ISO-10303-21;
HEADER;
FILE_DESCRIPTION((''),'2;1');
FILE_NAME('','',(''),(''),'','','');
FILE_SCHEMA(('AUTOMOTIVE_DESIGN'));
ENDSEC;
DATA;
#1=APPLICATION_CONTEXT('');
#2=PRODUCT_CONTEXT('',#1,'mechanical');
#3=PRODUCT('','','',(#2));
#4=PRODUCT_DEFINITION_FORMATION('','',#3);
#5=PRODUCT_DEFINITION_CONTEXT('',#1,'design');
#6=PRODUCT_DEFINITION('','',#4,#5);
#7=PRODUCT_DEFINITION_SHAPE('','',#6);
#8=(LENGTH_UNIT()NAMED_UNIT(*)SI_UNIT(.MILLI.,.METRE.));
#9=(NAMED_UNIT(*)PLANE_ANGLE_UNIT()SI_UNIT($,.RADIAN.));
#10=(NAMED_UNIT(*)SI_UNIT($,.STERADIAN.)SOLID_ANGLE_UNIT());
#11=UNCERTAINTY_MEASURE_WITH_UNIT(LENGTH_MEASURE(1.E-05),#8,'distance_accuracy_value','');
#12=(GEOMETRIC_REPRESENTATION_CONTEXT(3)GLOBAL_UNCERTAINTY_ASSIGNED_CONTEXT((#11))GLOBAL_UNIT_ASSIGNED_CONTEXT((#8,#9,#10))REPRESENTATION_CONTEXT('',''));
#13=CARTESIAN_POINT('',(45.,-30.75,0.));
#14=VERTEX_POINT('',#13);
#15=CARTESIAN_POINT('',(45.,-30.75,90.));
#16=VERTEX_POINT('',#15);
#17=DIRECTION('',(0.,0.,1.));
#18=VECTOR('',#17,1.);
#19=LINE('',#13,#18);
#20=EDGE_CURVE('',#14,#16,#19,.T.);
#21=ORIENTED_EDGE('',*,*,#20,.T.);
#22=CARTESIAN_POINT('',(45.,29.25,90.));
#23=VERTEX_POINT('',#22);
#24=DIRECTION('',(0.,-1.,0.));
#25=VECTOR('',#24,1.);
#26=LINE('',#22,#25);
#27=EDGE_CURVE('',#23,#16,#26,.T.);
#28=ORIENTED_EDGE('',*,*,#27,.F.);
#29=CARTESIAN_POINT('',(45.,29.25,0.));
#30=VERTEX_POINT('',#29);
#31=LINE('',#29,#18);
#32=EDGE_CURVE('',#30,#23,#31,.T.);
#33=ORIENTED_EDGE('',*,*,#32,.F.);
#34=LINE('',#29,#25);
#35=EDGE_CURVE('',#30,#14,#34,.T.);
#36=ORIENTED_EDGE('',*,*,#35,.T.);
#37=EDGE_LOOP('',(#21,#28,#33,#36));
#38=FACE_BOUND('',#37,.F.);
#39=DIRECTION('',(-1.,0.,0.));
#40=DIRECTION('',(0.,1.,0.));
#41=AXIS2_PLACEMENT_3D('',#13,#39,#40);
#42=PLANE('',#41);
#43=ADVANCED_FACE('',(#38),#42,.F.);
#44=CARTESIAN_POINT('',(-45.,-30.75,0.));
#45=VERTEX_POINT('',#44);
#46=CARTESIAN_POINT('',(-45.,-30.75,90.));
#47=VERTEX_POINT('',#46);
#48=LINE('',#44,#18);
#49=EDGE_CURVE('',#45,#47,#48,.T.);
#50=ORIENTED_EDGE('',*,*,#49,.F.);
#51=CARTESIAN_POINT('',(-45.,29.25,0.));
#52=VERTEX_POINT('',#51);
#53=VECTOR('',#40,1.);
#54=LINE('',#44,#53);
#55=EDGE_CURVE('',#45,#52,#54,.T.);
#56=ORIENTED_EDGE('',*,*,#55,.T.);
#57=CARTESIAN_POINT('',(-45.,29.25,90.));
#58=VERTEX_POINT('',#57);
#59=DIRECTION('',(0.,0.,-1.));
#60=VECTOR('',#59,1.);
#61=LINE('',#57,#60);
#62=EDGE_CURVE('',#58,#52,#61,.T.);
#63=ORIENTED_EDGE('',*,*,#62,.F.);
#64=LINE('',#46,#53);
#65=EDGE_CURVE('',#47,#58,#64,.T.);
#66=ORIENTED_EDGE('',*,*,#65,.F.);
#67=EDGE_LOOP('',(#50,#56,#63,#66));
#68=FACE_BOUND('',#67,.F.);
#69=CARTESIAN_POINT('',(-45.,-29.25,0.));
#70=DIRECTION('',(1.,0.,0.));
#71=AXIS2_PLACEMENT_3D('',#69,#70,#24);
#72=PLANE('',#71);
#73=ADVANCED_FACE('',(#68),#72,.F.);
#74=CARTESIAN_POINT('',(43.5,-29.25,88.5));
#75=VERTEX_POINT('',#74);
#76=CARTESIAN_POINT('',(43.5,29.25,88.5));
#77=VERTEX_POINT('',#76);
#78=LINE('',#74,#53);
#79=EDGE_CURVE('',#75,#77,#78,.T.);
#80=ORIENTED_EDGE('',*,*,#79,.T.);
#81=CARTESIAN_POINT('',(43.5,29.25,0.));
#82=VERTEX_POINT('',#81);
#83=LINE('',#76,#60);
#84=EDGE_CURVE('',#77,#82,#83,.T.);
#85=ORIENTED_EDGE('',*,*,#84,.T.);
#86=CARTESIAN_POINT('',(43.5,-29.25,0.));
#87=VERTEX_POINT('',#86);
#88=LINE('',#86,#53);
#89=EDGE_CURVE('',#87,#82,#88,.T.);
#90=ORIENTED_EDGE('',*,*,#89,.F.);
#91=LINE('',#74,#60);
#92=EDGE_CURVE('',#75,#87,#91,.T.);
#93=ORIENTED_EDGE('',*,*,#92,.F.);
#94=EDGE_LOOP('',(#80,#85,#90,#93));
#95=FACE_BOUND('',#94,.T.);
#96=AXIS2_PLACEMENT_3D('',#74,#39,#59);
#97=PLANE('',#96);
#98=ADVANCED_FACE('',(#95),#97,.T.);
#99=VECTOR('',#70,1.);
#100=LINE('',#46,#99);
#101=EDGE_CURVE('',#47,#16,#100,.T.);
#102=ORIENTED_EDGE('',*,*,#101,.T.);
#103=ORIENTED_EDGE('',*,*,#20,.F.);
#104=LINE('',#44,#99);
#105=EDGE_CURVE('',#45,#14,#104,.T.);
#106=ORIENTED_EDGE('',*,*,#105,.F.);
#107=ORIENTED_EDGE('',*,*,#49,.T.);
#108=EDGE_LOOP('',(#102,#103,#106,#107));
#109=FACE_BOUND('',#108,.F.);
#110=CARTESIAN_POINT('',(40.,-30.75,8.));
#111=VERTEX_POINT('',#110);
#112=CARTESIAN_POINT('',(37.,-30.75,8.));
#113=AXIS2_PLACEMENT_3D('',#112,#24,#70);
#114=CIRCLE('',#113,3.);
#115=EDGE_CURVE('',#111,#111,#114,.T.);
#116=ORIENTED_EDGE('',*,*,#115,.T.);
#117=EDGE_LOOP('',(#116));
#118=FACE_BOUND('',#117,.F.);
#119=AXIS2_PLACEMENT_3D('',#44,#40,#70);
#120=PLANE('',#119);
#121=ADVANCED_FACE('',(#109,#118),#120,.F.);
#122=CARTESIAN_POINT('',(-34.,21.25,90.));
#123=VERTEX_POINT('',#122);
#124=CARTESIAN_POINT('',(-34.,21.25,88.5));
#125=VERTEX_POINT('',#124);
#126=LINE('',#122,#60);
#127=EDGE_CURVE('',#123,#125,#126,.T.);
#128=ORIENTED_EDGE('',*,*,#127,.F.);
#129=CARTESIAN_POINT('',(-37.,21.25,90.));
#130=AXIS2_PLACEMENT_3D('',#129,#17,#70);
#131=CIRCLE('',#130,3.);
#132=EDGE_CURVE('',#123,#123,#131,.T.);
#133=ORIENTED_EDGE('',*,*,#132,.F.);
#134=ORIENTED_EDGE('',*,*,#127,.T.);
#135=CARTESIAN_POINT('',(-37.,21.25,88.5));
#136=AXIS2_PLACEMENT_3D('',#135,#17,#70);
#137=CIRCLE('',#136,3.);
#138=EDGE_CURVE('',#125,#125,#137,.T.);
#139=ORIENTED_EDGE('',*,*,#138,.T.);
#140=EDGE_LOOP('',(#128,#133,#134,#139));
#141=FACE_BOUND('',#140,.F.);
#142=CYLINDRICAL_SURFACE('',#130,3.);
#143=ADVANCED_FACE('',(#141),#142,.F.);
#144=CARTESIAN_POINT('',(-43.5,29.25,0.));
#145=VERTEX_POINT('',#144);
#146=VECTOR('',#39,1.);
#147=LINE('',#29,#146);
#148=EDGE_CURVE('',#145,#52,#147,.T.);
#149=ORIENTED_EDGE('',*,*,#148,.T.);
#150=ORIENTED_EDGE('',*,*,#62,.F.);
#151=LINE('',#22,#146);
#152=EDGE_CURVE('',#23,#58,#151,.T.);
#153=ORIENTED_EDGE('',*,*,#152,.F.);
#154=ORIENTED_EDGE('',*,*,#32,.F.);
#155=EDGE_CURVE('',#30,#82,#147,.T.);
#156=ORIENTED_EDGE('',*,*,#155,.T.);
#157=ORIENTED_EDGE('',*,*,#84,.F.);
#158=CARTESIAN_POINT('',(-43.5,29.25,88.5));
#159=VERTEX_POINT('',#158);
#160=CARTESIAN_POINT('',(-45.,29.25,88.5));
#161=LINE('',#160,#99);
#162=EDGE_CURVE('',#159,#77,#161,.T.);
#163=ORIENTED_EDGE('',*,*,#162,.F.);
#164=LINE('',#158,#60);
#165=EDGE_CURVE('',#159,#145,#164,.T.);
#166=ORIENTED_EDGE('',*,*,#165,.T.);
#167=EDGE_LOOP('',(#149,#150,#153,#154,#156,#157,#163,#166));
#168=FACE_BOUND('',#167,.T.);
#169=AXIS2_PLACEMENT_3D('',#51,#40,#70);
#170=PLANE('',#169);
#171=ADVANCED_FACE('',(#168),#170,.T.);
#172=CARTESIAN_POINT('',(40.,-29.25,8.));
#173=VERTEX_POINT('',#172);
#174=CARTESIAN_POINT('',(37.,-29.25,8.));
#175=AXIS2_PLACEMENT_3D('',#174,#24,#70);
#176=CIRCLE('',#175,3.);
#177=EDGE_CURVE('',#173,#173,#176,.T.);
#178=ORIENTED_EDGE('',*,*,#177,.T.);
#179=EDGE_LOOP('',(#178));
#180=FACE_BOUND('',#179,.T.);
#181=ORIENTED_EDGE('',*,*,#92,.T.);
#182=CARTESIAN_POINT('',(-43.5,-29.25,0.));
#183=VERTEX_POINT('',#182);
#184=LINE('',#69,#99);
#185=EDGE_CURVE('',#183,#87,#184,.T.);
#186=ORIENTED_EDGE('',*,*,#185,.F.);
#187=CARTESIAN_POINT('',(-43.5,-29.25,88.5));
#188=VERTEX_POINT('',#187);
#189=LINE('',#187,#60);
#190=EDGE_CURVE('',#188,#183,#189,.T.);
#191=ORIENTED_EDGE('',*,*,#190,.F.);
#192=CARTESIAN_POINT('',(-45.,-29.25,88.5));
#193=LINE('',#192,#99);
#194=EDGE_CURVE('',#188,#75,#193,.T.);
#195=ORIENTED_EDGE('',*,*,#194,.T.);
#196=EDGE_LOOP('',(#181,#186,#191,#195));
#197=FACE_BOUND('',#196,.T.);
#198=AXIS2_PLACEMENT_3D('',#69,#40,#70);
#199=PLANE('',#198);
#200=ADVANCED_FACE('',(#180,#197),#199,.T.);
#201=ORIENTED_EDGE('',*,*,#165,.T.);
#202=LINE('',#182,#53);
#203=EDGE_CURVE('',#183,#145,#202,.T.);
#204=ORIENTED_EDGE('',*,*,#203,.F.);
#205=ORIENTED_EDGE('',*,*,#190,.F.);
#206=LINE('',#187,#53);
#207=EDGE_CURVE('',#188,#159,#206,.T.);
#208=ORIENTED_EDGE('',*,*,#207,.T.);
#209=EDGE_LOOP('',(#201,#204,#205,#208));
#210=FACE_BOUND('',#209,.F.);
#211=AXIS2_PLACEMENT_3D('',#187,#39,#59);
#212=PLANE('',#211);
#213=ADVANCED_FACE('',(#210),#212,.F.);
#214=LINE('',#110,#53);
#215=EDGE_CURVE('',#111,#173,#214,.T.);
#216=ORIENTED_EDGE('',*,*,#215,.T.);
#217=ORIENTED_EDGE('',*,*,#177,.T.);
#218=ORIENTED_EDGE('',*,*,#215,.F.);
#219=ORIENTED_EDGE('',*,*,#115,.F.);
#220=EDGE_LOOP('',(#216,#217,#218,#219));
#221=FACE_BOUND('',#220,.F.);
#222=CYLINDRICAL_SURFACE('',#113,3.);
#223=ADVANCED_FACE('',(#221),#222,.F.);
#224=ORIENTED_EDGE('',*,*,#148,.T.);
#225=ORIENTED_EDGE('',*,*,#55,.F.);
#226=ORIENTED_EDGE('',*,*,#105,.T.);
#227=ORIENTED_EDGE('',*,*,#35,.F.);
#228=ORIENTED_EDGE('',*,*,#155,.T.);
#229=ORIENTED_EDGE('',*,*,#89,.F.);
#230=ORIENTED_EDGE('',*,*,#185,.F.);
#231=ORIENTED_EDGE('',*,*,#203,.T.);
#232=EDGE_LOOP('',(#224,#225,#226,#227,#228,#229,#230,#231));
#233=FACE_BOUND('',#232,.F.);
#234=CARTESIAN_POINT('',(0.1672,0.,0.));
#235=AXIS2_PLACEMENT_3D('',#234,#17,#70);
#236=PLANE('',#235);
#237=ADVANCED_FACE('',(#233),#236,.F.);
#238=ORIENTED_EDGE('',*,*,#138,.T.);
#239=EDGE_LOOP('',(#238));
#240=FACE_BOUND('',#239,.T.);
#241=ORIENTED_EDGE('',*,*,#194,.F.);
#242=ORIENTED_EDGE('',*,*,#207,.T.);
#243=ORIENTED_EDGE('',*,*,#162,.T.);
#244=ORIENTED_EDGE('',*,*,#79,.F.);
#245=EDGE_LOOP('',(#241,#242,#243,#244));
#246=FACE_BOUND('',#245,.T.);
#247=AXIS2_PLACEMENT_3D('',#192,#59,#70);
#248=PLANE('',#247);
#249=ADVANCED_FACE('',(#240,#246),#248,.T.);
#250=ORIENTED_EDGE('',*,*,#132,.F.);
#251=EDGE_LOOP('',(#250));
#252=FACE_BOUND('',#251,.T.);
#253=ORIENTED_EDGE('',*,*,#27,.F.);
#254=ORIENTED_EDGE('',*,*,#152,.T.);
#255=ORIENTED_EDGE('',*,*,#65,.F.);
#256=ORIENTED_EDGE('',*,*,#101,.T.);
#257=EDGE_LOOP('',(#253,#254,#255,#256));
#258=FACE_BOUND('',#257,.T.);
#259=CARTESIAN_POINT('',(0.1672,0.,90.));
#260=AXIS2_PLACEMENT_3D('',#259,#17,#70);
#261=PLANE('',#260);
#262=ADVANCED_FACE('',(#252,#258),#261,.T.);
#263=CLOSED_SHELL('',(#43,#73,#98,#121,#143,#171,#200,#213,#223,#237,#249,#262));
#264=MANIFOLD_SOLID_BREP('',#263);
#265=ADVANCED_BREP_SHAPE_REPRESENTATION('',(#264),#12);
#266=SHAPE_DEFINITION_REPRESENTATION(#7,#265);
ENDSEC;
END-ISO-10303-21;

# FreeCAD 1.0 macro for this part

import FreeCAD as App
import Part
import Sketcher

V = App.Vector
Q = App.Units.Quantity


def add_polygon(sketch, points):
    """Adds a closed chain of lines whose ends are joined by coincident constraints."""
    first, n = sketch.GeometryCount, len(points)
    for a, b in zip(points, points[1:] + points[:1]):
        sketch.addGeometry(Part.LineSegment(App.Vector(*a, 0), App.Vector(*b, 0)), False)
    for i in range(n):
        sketch.addConstraint(Sketcher.Constraint("Coincident", first + i, 2, first + (i + 1) % n, 1))

doc = App.newDocument("Part")
params = doc.addObject("Spreadsheet::Sheet", "Params")
for row, (alias, value) in enumerate([
    ("sketch1_height", "1.5 mm"),
    ("sketch1_width", "90 mm"),
    ("pad1_length", "90 mm"),
    ("sketch2_height", "1.5 mm"),
    ("sketch2_width", "90 mm"),
    ("pad2_length", "58.5 mm"),
    ("sketch3_width", "1.5 mm"),
    ("sketch3_height", "88.5 mm"),
    ("pad3_length", "58.5 mm"),
    ("sketch4_diameter", "6 mm"),
    ("sketch5_diameter", "6 mm"),
], start=1):
    params.set(f"A{row}", alias)
    params.set(f"B{row}", "=" + value)
    params.setAlias(f"B{row}", alias)

body = doc.addObject("PartDesign::Body", "Body")

# Sketch on XY plane
sketch1 = body.newObject("Sketcher::SketchObject", "Sketch")
sketch1.AttachmentSupport = (doc.getObject("XY_Plane"), [""])
sketch1.MapMode = "FlatFace"
add_polygon(sketch1, [(45, -29.2), (-45, -29.2), (-45, -30.8), (45, -30.8)])  # lines 0-3
sketch1.addConstraint(Sketcher.Constraint("Horizontal", 0))
sketch1.addConstraint(Sketcher.Constraint("Vertical", 1))
sketch1.addConstraint(Sketcher.Constraint("Horizontal", 2))
sketch1.addConstraint(Sketcher.Constraint("Vertical", 3))
sketch1.addConstraint(Sketcher.Constraint("DistanceY", 1, 2, 1, 1, Q("1.5 mm")))
sketch1.addConstraint(Sketcher.Constraint("DistanceX", 0, 2, 0, 1, Q("90 mm")))
sketch1.addConstraint(Sketcher.Constraint("DistanceX", 0, 2, -1, 1, Q("45 mm")))
sketch1.addConstraint(Sketcher.Constraint("DistanceY", 0, 2, -1, 1, Q("29.25 mm")))
sketch1.setExpression("Constraints[8]", "Params.sketch1_height")
sketch1.setExpression("Constraints[9]", "Params.sketch1_width")
pad1 = body.newObject("PartDesign::Pad", "Pad")
pad1.Profile = sketch1
pad1.setExpression("Length", "Params.pad1_length")

# Sketch on XZ plane
sketch2 = body.newObject("Sketcher::SketchObject", "Sketch001")
sketch2.AttachmentSupport = (doc.getObject("XZ_Plane"), [""])
sketch2.MapMode = "FlatFace"
sketch2.AttachmentOffset = App.Placement(V(0, 0, 29.25), App.Rotation())
add_polygon(sketch2, [(45, 90), (45, 88.5), (-45, 88.5), (-45, 90)])  # lines 0-3
sketch2.addConstraint(Sketcher.Constraint("Vertical", 0))
sketch2.addConstraint(Sketcher.Constraint("Horizontal", 1))
sketch2.addConstraint(Sketcher.Constraint("Vertical", 2))
sketch2.addConstraint(Sketcher.Constraint("Horizontal", 3))
sketch2.addConstraint(Sketcher.Constraint("DistanceY", 0, 2, 0, 1, Q("1.5 mm")))
sketch2.addConstraint(Sketcher.Constraint("DistanceX", 1, 2, 1, 1, Q("90 mm")))
sketch2.addConstraint(Sketcher.Constraint("DistanceX", -1, 1, 0, 2, Q("45 mm")))
sketch2.addConstraint(Sketcher.Constraint("DistanceY", -1, 1, 2, 2, Q("90 mm")))
sketch2.setExpression("Constraints[8]", "Params.sketch2_height")
sketch2.setExpression("Constraints[9]", "Params.sketch2_width")
pad2 = body.newObject("PartDesign::Pad", "Pad001")
pad2.Profile = sketch2
pad2.setExpression("Length", "Params.pad2_length")
pad2.Reversed = True

# Sketch on XZ plane
sketch3 = body.newObject("Sketcher::SketchObject", "Sketch002")
sketch3.AttachmentSupport = (doc.getObject("XZ_Plane"), [""])
sketch3.MapMode = "FlatFace"
sketch3.AttachmentOffset = App.Placement(V(0, 0, 29.25), App.Rotation())
add_polygon(sketch3, [(-43.5, 88.5), (-43.5, 0), (-45, 0), (-45, 88.5)])  # lines 0-3
add_polygon(sketch3, [(45, 88.5), (45, 0), (43.5, 0), (43.5, 88.5)])  # lines 4-7
sketch3.addConstraint(Sketcher.Constraint("Vertical", 0))
sketch3.addConstraint(Sketcher.Constraint("Horizontal", 1))
sketch3.addConstraint(Sketcher.Constraint("Vertical", 2))
sketch3.addConstraint(Sketcher.Constraint("Horizontal", 3))
sketch3.addConstraint(Sketcher.Constraint("Vertical", 4))
sketch3.addConstraint(Sketcher.Constraint("Horizontal", 5))
sketch3.addConstraint(Sketcher.Constraint("Vertical", 6))
sketch3.addConstraint(Sketcher.Constraint("Horizontal", 7))
sketch3.addConstraint(Sketcher.Constraint("Symmetric", 1, 2, 4, 2, -1, 1))
sketch3.addConstraint(Sketcher.Constraint("Symmetric", 0, 2, 5, 2, -2))
sketch3.addConstraint(Sketcher.Constraint("Horizontal", 3, 2, 6, 2))
sketch3.addConstraint(Sketcher.Constraint("DistanceX", 1, 2, 1, 1, Q("1.5 mm")))
sketch3.addConstraint(Sketcher.Constraint("DistanceY", 0, 2, 0, 1, Q("88.5 mm")))
sketch3.addConstraint(Sketcher.Constraint("DistanceX", 1, 2, -1, 1, Q("45 mm")))
sketch3.setExpression("Constraints[19]", "Params.sketch3_width")
sketch3.setExpression("Constraints[20]", "Params.sketch3_height")
pad3 = body.newObject("PartDesign::Pad", "Pad002")
pad3.Profile = sketch3
pad3.setExpression("Length", "Params.pad3_length")
pad3.Reversed = True

# Sketch on XZ plane
sketch4 = body.newObject("Sketcher::SketchObject", "Sketch003")
sketch4.AttachmentSupport = (doc.getObject("XZ_Plane"), [""])
sketch4.MapMode = "FlatFace"
sketch4.AttachmentOffset = App.Placement(V(0, 0, 30.75), App.Rotation())
sketch4.addGeometry(Part.Circle(V(37, 8, 0), V(0, 0, 1), 3), False)
sketch4.addConstraint(Sketcher.Constraint("Diameter", 0, Q("6 mm")))
sketch4.addConstraint(Sketcher.Constraint("DistanceX", -1, 1, 0, 3, Q("37 mm")))
sketch4.addConstraint(Sketcher.Constraint("DistanceY", -1, 1, 0, 3, Q("8 mm")))
sketch4.setExpression("Constraints[0]", "Params.sketch4_diameter")
pocket1 = body.newObject("PartDesign::Pocket", "Pocket")
pocket1.Profile = sketch4
pocket1.Type = "UpToFirst"

# Sketch on XY plane
sketch5 = body.newObject("Sketcher::SketchObject", "Sketch004")
sketch5.AttachmentSupport = (doc.getObject("XY_Plane"), [""])
sketch5.MapMode = "FlatFace"
sketch5.AttachmentOffset = App.Placement(V(0, 0, 90), App.Rotation())
sketch5.addGeometry(Part.Circle(V(-37, 21.2, 0), V(0, 0, 1), 3), False)
sketch5.addConstraint(Sketcher.Constraint("Diameter", 0, Q("6 mm")))
sketch5.addConstraint(Sketcher.Constraint("DistanceX", 0, 3, -1, 1, Q("37 mm")))
sketch5.addConstraint(Sketcher.Constraint("DistanceY", -1, 1, 0, 3, Q("21.25 mm")))
sketch5.setExpression("Constraints[0]", "Params.sketch5_diameter")
pocket2 = body.newObject("PartDesign::Pocket", "Pocket001")
pocket2.Profile = sketch5
pocket2.Type = "UpToFirst"

doc.recompute()
